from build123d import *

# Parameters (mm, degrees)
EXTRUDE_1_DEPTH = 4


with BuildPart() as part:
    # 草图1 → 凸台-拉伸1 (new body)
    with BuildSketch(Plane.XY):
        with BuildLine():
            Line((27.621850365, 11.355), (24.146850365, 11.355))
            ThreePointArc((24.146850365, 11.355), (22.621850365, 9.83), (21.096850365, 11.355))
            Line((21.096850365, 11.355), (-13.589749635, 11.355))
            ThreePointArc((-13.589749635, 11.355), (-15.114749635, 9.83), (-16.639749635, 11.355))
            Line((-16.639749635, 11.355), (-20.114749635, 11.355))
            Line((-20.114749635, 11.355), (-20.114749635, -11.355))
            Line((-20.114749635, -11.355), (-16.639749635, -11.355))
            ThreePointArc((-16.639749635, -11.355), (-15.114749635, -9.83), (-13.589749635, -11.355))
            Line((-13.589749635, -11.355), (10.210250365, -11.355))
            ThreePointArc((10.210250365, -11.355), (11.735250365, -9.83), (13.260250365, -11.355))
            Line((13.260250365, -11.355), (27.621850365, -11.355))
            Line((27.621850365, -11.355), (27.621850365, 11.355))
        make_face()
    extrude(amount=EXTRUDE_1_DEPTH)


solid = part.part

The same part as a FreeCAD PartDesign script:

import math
import FreeCAD as App
import Part
import Sketcher

V = App.Vector
Q = App.Units.Quantity

doc = App.newDocument("Part")
body = doc.addObject("PartDesign::Body", "Body")

# Sketch on XY plane
sketch1 = doc.addObject("Sketcher::SketchObject", "Sketch")
body.addObject(sketch1)
sketch1.AttachmentSupport = (doc.XY_Plane, [""])
sketch1.MapMode = "FlatFace"
sketch1.addGeometry(Part.LineSegment(V(27.6, 11.4, 0), V(24.1, 11.4, 0)), False)
sketch1.addGeometry(Part.ArcOfCircle(Part.Circle(V(22.6, 11.4, 0), V(0, 0, 1), 1.5), math.radians(180), math.radians(360)), False)
sketch1.addGeometry(Part.LineSegment(V(21.1, 11.4, 0), V(-13.6, 11.4, 0)), False)
sketch1.addGeometry(Part.ArcOfCircle(Part.Circle(V(-15.1, 11.4, 0), V(0, 0, 1), 1.5), math.radians(180), math.radians(360)), False)
sketch1.addGeometry(Part.LineSegment(V(-16.6, 11.4, 0), V(-20.1, 11.4, 0)), False)
sketch1.addGeometry(Part.LineSegment(V(-20.1, 11.4, 0), V(-20.1, -11.4, 0)), False)
sketch1.addGeometry(Part.LineSegment(V(-20.1, -11.4, 0), V(-16.6, -11.4, 0)), False)
sketch1.addGeometry(Part.ArcOfCircle(Part.Circle(V(-15.1, -11.4, 0), V(0, 0, 1), 1.5), math.radians(0), math.radians(180)), False)
sketch1.addGeometry(Part.LineSegment(V(-13.6, -11.4, 0), V(10.2, -11.4, 0)), False)
sketch1.addGeometry(Part.ArcOfCircle(Part.Circle(V(11.7, -11.4, 0), V(0, 0, 1), 1.5), math.radians(0), math.radians(180)), False)
sketch1.addGeometry(Part.LineSegment(V(13.3, -11.4, 0), V(27.6, -11.4, 0)), False)
sketch1.addGeometry(Part.LineSegment(V(27.6, -11.4, 0), V(27.6, 11.4, 0)), False)
sketch1.addConstraint(Sketcher.Constraint("Coincident", 0, 2, 1, 2))
sketch1.addConstraint(Sketcher.Constraint("Coincident", 1, 1, 2, 1))
sketch1.addConstraint(Sketcher.Constraint("Coincident", 2, 2, 3, 2))
sketch1.addConstraint(Sketcher.Constraint("Coincident", 3, 1, 4, 1))
sketch1.addConstraint(Sketcher.Constraint("Coincident", 4, 2, 5, 1))
sketch1.addConstraint(Sketcher.Constraint("Coincident", 5, 2, 6, 1))
sketch1.addConstraint(Sketcher.Constraint("Coincident", 6, 2, 7, 2))
sketch1.addConstraint(Sketcher.Constraint("Coincident", 7, 1, 8, 1))
sketch1.addConstraint(Sketcher.Constraint("Coincident", 8, 2, 9, 2))
sketch1.addConstraint(Sketcher.Constraint("Coincident", 9, 1, 10, 1))
sketch1.addConstraint(Sketcher.Constraint("Coincident", 10, 2, 11, 1))
sketch1.addConstraint(Sketcher.Constraint("Coincident", 11, 2, 0, 1))
sketch1.addConstraint(Sketcher.Constraint("Horizontal", 0))
sketch1.addConstraint(Sketcher.Constraint("Horizontal", 2))
sketch1.addConstraint(Sketcher.Constraint("Horizontal", 4))
sketch1.addConstraint(Sketcher.Constraint("Vertical", 5))
sketch1.addConstraint(Sketcher.Constraint("Horizontal", 6))
sketch1.addConstraint(Sketcher.Constraint("Horizontal", 8))
sketch1.addConstraint(Sketcher.Constraint("Horizontal", 10))
sketch1.addConstraint(Sketcher.Constraint("Vertical", 11))
sketch1.addConstraint(Sketcher.Constraint("Equal", 1, 3))
sketch1.addConstraint(Sketcher.Constraint("Equal", 3, 7))
sketch1.addConstraint(Sketcher.Constraint("Equal", 7, 9))
sketch1.addConstraint(Sketcher.Constraint("Symmetric", 3, 3, 7, 3, -1))
sketch1.addConstraint(Sketcher.Constraint("Horizontal", 1, 3, 3, 3))
sketch1.addConstraint(Sketcher.Constraint("Horizontal", 7, 3, 9, 3))
sketch1.addConstraint(Sketcher.Constraint("Horizontal", 3, 3, 0, 2))
sketch1.addConstraint(Sketcher.Constraint("Horizontal", 0, 2, 1, 1))
sketch1.addConstraint(Sketcher.Constraint("Horizontal", 2, 2, 3, 1))
sketch1.addConstraint(Sketcher.Constraint("Horizontal", 9, 3, 5, 2))
sketch1.addConstraint(Sketcher.Constraint("Horizontal", 6, 2, 7, 1))
sketch1.addConstraint(Sketcher.Constraint("Horizontal", 8, 2, 9, 1))
sketch1.addConstraint(Sketcher.Constraint("Equal", 0, 4))
sketch1.addConstraint(Sketcher.Constraint("DistanceX", 8, 1, 8, 2, Q("23.8 mm")))
sketch1.addConstraint(Sketcher.Constraint("Radius", 1, Q("1.525 mm")))
sketch1.addConstraint(Sketcher.Constraint("DistanceX", 4, 2, 3, 3, Q("5 mm")))
sketch1.addConstraint(Sketcher.Constraint("DistanceY", 5, 2, 5, 1, Q("22.71 mm")))
sketch1.addConstraint(Sketcher.Constraint("DistanceX", 2, 2, 2, 1, Q("34.6866 mm")))
sketch1.addConstraint(Sketcher.Constraint("DistanceX", -1, 1, 1, 3, Q("22.62185 mm")))
pad1 = doc.addObject("PartDesign::Pad", "Pad")
body.addObject(pad1)
pad1.Profile = sketch1
pad1.Length = 4

doc.recompute()
